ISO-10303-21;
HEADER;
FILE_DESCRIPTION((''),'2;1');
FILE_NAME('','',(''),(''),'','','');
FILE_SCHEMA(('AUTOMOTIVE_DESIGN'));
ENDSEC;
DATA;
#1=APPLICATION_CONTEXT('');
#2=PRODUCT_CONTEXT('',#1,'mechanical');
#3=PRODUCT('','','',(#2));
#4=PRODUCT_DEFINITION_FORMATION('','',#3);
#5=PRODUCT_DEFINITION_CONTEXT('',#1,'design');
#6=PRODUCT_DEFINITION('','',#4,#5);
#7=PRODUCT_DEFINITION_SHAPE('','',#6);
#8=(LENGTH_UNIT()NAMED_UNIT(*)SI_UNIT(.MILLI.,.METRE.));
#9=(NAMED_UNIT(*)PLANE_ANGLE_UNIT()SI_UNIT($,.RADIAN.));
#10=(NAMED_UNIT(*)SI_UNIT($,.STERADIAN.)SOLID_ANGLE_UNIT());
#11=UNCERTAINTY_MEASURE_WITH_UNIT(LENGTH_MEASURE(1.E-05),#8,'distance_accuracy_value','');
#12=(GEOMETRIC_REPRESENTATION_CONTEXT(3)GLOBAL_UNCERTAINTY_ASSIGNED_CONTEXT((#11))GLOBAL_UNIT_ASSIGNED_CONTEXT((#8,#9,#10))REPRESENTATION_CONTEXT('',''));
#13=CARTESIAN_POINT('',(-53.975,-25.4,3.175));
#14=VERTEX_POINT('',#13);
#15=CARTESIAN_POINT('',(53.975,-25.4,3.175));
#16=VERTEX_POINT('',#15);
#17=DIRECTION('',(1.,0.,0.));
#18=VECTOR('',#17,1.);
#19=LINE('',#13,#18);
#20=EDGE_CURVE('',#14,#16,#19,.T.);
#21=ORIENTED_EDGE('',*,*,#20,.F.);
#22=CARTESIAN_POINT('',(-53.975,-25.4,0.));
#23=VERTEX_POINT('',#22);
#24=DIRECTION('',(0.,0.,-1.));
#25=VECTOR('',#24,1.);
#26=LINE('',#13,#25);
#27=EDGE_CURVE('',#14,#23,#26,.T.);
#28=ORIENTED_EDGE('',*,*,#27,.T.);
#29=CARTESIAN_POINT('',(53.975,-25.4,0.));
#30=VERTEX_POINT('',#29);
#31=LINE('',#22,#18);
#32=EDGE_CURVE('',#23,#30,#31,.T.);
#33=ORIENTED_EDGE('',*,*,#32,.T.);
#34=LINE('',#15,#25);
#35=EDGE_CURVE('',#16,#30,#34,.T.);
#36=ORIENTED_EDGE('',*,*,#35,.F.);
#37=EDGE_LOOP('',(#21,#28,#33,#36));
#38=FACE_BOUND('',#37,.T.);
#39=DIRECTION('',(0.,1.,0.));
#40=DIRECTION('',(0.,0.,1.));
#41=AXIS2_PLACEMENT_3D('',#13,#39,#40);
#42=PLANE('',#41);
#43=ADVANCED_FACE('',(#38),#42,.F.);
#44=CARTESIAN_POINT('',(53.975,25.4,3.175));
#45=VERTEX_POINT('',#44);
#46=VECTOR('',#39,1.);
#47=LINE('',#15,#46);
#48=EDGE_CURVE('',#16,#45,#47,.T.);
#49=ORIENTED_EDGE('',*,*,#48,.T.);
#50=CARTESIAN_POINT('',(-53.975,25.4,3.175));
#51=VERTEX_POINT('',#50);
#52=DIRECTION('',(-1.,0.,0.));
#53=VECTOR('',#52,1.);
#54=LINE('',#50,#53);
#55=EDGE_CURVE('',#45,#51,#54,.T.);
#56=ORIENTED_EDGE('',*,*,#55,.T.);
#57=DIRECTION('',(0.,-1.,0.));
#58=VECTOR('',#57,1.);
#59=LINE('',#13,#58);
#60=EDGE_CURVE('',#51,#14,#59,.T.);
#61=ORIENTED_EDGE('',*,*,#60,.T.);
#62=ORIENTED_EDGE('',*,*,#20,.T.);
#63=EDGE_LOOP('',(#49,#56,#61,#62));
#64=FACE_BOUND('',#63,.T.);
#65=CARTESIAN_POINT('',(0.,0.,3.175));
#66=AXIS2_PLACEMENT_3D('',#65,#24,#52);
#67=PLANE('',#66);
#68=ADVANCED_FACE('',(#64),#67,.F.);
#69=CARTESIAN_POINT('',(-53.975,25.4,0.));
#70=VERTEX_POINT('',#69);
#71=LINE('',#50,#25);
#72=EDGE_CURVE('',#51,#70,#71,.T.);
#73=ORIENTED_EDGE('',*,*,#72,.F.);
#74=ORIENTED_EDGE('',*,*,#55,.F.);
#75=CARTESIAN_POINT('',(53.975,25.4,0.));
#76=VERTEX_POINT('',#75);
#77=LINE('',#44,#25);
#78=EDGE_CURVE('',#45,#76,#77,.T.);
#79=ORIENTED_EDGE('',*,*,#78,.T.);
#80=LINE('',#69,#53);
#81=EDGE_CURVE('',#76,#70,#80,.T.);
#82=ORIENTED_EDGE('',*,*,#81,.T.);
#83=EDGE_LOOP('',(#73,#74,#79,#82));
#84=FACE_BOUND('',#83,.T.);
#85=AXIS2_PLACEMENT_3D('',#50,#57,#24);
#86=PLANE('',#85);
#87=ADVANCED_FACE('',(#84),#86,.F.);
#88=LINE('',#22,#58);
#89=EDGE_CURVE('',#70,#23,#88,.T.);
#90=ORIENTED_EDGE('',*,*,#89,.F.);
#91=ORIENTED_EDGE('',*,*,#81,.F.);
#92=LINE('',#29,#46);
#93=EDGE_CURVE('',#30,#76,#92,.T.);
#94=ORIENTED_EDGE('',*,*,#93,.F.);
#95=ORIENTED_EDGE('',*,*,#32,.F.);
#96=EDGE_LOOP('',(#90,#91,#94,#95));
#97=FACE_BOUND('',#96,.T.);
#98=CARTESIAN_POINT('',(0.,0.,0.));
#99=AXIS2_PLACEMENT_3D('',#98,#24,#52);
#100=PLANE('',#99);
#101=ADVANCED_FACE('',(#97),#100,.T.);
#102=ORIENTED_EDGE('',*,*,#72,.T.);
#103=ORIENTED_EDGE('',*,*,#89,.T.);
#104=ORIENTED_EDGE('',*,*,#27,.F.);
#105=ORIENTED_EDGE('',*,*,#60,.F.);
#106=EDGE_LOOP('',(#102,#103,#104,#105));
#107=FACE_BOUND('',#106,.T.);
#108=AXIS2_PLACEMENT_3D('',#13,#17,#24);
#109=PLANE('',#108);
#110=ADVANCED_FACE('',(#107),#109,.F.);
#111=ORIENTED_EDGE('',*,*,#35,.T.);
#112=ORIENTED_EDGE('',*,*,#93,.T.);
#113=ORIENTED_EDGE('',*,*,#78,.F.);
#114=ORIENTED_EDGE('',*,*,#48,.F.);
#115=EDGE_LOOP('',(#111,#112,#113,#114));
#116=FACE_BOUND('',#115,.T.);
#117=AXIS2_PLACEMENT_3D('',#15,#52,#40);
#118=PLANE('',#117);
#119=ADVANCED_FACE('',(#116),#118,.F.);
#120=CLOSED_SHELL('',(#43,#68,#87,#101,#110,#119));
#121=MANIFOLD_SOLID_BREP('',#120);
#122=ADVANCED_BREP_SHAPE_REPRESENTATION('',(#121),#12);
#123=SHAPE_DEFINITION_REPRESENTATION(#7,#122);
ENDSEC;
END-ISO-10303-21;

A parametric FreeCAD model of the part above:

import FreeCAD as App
import Part
import Sketcher

V = App.Vector
Q = App.Units.Quantity

doc = App.newDocument("Part")
body = doc.addObject("PartDesign::Body", "Body")

sketch1 = body.newObject("Sketcher::SketchObject", "Sketch")
sketch1.AttachmentSupport = (doc.getObject("XY_Plane"), [""])
sketch1.MapMode = "FlatFace"
sketch1.addGeometry([
    Part.LineSegment(V(-53.975, 25.4, 0), V(-53.975, -25.4, 0)),
    Part.LineSegment(V(-53.975, -25.4, 0), V(53.975, -25.4, 0)),
    Part.LineSegment(V(53.975, -25.4, 0), V(53.975, 25.4, 0)),
    Part.LineSegment(V(53.975, 25.4, 0), V(-53.975, 25.4, 0)),
], False)
sketch1.addConstraint([
    Sketcher.Constraint("Coincident", 0, 2, 1, 1),
    Sketcher.Constraint("Coincident", 1, 2, 2, 1),
    Sketcher.Constraint("Coincident", 2, 2, 3, 1),
    Sketcher.Constraint("Coincident", 3, 2, 0, 1),
    Sketcher.Constraint("Vertical", 0),
    Sketcher.Constraint("Horizontal", 1),
    Sketcher.Constraint("Vertical", 2),
    Sketcher.Constraint("Horizontal", 3),
    Sketcher.Constraint("Symmetric", 0, 2, 2, 2, -1, 1),
    Sketcher.Constraint("DistanceY", 0, 2, 0, 1, Q("2 in")),
    Sketcher.Constraint("DistanceX", 1, 1, 1, 2, Q("4.25 in")),
])
pad1 = body.newObject("PartDesign::Pad", "Pad")
pad1.Profile = sketch1
pad1.Length = Q("0.125 in")

doc.recompute()
